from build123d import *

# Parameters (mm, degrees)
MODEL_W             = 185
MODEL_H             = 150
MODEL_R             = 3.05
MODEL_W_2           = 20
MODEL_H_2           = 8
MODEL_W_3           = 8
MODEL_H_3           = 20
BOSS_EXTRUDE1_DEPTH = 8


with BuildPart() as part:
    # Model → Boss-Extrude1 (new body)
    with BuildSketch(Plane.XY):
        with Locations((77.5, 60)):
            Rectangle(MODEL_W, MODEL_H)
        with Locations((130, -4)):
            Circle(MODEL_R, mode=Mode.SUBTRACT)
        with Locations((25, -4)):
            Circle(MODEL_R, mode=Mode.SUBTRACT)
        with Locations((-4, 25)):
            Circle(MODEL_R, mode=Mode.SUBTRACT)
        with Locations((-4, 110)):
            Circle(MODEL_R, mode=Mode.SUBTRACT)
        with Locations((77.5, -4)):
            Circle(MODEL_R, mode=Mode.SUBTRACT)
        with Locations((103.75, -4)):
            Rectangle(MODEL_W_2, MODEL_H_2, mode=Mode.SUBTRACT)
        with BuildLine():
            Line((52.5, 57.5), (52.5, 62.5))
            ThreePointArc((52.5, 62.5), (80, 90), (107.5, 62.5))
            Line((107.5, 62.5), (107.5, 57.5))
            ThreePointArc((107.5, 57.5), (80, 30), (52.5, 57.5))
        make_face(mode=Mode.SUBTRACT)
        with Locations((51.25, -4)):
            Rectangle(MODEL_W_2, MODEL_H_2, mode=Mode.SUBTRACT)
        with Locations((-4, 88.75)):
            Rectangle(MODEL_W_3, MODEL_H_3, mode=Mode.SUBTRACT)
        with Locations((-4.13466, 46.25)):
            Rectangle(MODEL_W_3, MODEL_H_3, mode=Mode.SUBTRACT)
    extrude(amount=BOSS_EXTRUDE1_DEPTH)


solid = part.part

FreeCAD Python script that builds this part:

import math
import FreeCAD as App
import Part
import Sketcher

doc = App.newDocument("Part")
body = doc.addObject("PartDesign::Body", "Body")

sketch1 = body.newObject("Sketcher::SketchObject", "Sketch")
sketch1.AttachmentSupport = (doc.getObject("XY_Plane"), [""])
sketch1.MapMode = "FlatFace"
sketch1.addGeometry([
    Part.LineSegment(App.Vector(-15, 135, 0), App.Vector(-15, -15, 0)),
    Part.LineSegment(App.Vector(-15, -15, 0), App.Vector(170, -15, 0)),
    Part.LineSegment(App.Vector(170, -15, 0), App.Vector(170, 135, 0)),
    Part.LineSegment(App.Vector(170, 135, 0), App.Vector(-15, 135, 0)),
    Part.Circle(App.Vector(25, -4, 0), App.Vector(0, 0, 1), 3),
    Part.LineSegment(App.Vector(61.2, -8, 0), App.Vector(41.2, -8, 0)),
    Part.LineSegment(App.Vector(41.2, -8, 0), App.Vector(41.2, 0, 0)),
    Part.LineSegment(App.Vector(41.2, 0, 0), App.Vector(61.2, 0, 0)),
    Part.LineSegment(App.Vector(61.2, 0, 0), App.Vector(61.2, -8, 0)),
    Part.Circle(App.Vector(-4, 25, 0), App.Vector(0, 0, 1), 3),
    Part.LineSegment(App.Vector(-0.1, 36.2, 0), App.Vector(-8.1, 36.2, 0)),
    Part.LineSegment(App.Vector(-8.1, 36.2, 0), App.Vector(-8.1, 56.2, 0)),
    Part.LineSegment(App.Vector(-8.1, 56.2, 0), App.Vector(-0.1, 56.2, 0)),
    Part.LineSegment(App.Vector(-0.1, 56.2, 0), App.Vector(-0.1, 36.2, 0)),
    Part.Circle(App.Vector(77.5, -4, 0), App.Vector(0, 0, 1), 3),
    Part.LineSegment(App.Vector(113.8, -8, 0), App.Vector(93.8, -8, 0)),
    Part.LineSegment(App.Vector(93.8, -8, 0), App.Vector(93.8, 0, 0)),
    Part.LineSegment(App.Vector(93.8, 0, 0), App.Vector(113.8, 0, 0)),
    Part.LineSegment(App.Vector(113.8, 0, 0), App.Vector(113.8, -8, 0)),
    Part.Circle(App.Vector(130, -4, 0), App.Vector(0, 0, 1), 3),
    Part.LineSegment(App.Vector(0, 78.8, 0), App.Vector(-8, 78.8, 0)),
    Part.LineSegment(App.Vector(-8, 78.8, 0), App.Vector(-8, 98.8, 0)),
    Part.LineSegment(App.Vector(-8, 98.8, 0), App.Vector(0, 98.8, 0)),
    Part.LineSegment(App.Vector(0, 98.8, 0), App.Vector(0, 78.8, 0)),
    Part.Circle(App.Vector(-4, 110, 0), App.Vector(0, 0, 1), 3),
    Part.ArcOfCircle(Part.Circle(App.Vector(80, 57.5, 0), App.Vector(0, 0, 1), 27.5), math.radians(180), math.radians(360)),
    Part.LineSegment(App.Vector(52.5, 57.5, 0), App.Vector(52.5, 62.5, 0)),
    Part.ArcOfCircle(Part.Circle(App.Vector(80, 62.5, 0), App.Vector(0, 0, 1), 27.5), math.radians(0), math.radians(180)),
    Part.LineSegment(App.Vector(107.5, 62.5, 0), App.Vector(107.5, 57.5, 0)),
], False)
sketch1.addConstraint([
    Sketcher.Constraint("Coincident", 0, 2, 1, 1),
    Sketcher.Constraint("Coincident", 1, 2, 2, 1),
    Sketcher.Constraint("Coincident", 2, 2, 3, 1),
    Sketcher.Constraint("Coincident", 3, 2, 0, 1),
    Sketcher.Constraint("Coincident", 5, 2, 6, 1),
    Sketcher.Constraint("Coincident", 6, 2, 7, 1),
    Sketcher.Constraint("Coincident", 7, 2, 8, 1),
    Sketcher.Constraint("Coincident", 8, 2, 5, 1),
    Sketcher.Constraint("Coincident", 10, 2, 11, 1),
    Sketcher.Constraint("Coincident", 11, 2, 12, 1),
    Sketcher.Constraint("Coincident", 12, 2, 13, 1),
    Sketcher.Constraint("Coincident", 13, 2, 10, 1),
    Sketcher.Constraint("Coincident", 15, 2, 16, 1),
    Sketcher.Constraint("Coincident", 16, 2, 17, 1),
    Sketcher.Constraint("Coincident", 17, 2, 18, 1),
    Sketcher.Constraint("Coincident", 18, 2, 15, 1),
    Sketcher.Constraint("Coincident", 20, 2, 21, 1),
    Sketcher.Constraint("Coincident", 21, 2, 22, 1),
    Sketcher.Constraint("Coincident", 22, 2, 23, 1),
    Sketcher.Constraint("Coincident", 23, 2, 20, 1),
    Sketcher.Constraint("Tangent", 25, 1, 26, 1),
    Sketcher.Constraint("Tangent", 26, 2, 27, 2),
    Sketcher.Constraint("Tangent", 27, 1, 28, 1),
    Sketcher.Constraint("Tangent", 28, 2, 25, 2),
    Sketcher.Constraint("Vertical", 0),
    Sketcher.Constraint("Horizontal", 1),
    Sketcher.Constraint("Vertical", 2),
    Sketcher.Constraint("Horizontal", 3),
    Sketcher.Constraint("Horizontal", 5),
    Sketcher.Constraint("Vertical", 6),
    Sketcher.Constraint("Horizontal", 7),
    Sketcher.Constraint("Vertical", 8),
    Sketcher.Constraint("Horizontal", 10),
    Sketcher.Constraint("Vertical", 11),
    Sketcher.Constraint("Horizontal", 12),
    Sketcher.Constraint("Vertical", 13),
    Sketcher.Constraint("Horizontal", 15),
    Sketcher.Constraint("Vertical", 16),
    Sketcher.Constraint("Horizontal", 17),
    Sketcher.Constraint("Vertical", 18),
    Sketcher.Constraint("Horizontal", 20),
    Sketcher.Constraint("Vertical", 21),
    Sketcher.Constraint("Horizontal", 22),
    Sketcher.Constraint("Vertical", 23),
    Sketcher.Constraint("Vertical", 26),
    Sketcher.Constraint("Vertical", 28),
    Sketcher.Constraint("Equal", 4, 9),
    Sketcher.Constraint("Equal", 9, 14),
    Sketcher.Constraint("Equal", 14, 19),
    Sketcher.Constraint("Equal", 19, 24),
    Sketcher.Constraint("PointOnObject", 6, 2, -1),
    Sketcher.Constraint("PointOnObject", 16, 2, -1),
    Sketcher.Constraint("PointOnObject", 22, 2, -2),
    Sketcher.Constraint("Horizontal", 4, 3, 14, 3),
    Sketcher.Constraint("Horizontal", 14, 3, 19, 3),
    Sketcher.Constraint("Horizontal", 8, 2, 15, 2),
    Sketcher.Constraint("Vertical", 9, 3, 24, 3),
    Sketcher.Constraint("Equal", 7, 15),
    Sketcher.Constraint("Equal", 12, 20),
    Sketcher.Constraint("Equal", 22, 6),
    Sketcher.Constraint("Equal", 17, 11),
    Sketcher.Constraint("Equal", 13, 21),
    Sketcher.Constraint("Diameter", 4, 6.1),
    Sketcher.Constraint("Radius", 25, 27.5),
    Sketcher.Constraint("DistanceX", 1, 1, 1, 2, 185.0),
    Sketcher.Constraint("DistanceX", 5, 2, 5, 1, 20.0),
    Sketcher.Constraint("DistanceX", 10, 2, 10, 1, 8.0),
    Sketcher.Constraint("DistanceY", 0, 2, 0, 1, 150.0),
    Sketcher.Constraint("DistanceY", 26, 1, 26, 2, 5.0),
    Sketcher.Constraint("DistanceX", -1, 1, 4, 3, 25.0),
    Sketcher.Constraint("DistanceY", 4, 3, -1, 1, 4.0),
    Sketcher.Constraint("DistanceX", 9, 3, -1, 1, 4.0),
    Sketcher.Constraint("DistanceY", -1, 1, 9, 3, 25.0),
    Sketcher.Constraint("DistanceX", -1, 1, 19, 3, 130.0),
    Sketcher.Constraint("DistanceY", -1, 1, 24, 3, 110.0),
    Sketcher.Constraint("DistanceX", -1, 1, 25, 3, 80.0),
    Sketcher.Constraint("DistanceX", 0, 2, -1, 1, 15.0),
    Sketcher.Constraint("DistanceY", 0, 2, -1, 1, 15.0),
    Sketcher.Constraint("DistanceX", -1, 1, 14, 3, 77.5),
    Sketcher.Constraint("DistanceY", -1, 1, 25, 3, 57.5),
    Sketcher.Constraint("DistanceX", 8, 2, 15, 2, 32.5),
    Sketcher.Constraint("DistanceY", 11, 2, 20, 2, 22.5),
    Sketcher.Constraint("DistanceX", -1, 1, 5, 2, 41.25),
    Sketcher.Constraint("DistanceY", -1, 1, 10, 2, 36.25),
    Sketcher.Constraint("DistanceX", 10, 2, -1, 1, 8.13466),
])
pad1 = body.newObject("PartDesign::Pad", "Pad")
pad1.Profile = sketch1
pad1.Length = 8

doc.recompute()
